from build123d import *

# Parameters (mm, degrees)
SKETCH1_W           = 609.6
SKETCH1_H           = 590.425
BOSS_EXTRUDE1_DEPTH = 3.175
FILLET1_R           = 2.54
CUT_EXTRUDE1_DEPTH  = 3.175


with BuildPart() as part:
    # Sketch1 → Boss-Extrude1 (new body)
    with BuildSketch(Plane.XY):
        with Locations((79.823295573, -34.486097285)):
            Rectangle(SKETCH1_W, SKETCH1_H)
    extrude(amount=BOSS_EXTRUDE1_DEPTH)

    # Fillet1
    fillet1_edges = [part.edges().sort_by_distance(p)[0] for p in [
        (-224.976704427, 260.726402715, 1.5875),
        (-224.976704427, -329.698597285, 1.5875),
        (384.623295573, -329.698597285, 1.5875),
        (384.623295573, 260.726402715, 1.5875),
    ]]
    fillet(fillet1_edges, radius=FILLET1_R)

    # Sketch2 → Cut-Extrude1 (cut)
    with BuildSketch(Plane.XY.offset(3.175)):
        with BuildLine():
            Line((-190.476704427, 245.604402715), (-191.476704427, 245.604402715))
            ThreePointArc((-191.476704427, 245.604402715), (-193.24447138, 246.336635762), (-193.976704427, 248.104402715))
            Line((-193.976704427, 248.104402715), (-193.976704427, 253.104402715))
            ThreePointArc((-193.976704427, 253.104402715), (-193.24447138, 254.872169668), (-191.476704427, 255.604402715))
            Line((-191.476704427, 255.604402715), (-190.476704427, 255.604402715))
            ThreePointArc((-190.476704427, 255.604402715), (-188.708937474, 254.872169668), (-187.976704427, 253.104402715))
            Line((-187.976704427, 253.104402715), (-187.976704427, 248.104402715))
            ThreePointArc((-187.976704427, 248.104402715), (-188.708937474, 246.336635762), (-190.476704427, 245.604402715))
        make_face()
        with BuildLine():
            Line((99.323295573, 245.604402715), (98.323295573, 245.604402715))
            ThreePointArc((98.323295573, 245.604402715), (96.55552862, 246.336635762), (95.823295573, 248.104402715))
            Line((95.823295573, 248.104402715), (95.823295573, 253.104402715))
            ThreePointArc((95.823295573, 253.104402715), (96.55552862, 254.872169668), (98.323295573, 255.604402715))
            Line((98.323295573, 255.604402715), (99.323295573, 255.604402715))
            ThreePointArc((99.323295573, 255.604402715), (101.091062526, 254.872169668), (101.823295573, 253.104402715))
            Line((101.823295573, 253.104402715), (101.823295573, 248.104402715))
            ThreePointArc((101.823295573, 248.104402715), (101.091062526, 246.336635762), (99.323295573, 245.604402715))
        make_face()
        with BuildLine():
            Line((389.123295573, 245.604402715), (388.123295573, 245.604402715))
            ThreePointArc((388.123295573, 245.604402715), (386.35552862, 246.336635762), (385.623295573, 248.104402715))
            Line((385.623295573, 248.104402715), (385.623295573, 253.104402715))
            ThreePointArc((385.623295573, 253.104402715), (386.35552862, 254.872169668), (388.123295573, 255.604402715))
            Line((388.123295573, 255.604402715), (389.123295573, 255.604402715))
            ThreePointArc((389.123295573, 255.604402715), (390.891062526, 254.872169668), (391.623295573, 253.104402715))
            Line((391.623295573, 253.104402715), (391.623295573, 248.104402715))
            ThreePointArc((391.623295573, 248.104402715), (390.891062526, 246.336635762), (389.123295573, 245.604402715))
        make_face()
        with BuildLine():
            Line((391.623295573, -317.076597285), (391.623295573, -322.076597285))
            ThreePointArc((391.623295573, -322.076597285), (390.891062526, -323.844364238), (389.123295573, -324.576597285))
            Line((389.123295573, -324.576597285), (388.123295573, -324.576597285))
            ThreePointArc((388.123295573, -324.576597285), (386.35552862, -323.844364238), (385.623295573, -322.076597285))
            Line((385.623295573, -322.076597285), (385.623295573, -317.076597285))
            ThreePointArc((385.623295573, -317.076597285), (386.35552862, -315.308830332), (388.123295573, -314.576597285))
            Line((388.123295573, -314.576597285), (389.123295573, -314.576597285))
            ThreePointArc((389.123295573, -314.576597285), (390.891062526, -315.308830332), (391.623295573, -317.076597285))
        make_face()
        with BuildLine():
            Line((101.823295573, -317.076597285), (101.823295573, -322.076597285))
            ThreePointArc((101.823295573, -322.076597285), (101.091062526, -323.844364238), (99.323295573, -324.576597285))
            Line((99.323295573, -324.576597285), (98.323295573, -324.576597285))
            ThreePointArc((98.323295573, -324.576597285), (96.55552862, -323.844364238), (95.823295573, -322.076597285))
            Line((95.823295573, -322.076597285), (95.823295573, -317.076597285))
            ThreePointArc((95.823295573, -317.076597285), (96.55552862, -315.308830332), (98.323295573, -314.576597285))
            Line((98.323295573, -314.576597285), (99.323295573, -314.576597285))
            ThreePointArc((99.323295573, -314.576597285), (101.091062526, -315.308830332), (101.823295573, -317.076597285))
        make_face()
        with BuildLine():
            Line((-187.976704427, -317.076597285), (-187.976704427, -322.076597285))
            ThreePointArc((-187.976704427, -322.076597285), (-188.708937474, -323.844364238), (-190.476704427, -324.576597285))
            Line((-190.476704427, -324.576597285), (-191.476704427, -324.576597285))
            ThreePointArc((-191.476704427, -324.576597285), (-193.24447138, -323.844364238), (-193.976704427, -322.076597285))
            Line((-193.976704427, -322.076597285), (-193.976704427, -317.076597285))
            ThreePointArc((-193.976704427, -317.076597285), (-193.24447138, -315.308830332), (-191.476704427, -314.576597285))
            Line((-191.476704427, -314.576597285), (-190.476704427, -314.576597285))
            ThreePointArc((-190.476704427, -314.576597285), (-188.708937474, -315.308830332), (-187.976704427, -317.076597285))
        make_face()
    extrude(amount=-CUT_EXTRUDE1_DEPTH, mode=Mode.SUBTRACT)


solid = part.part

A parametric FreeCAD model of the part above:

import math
import FreeCAD as App
import Part
import Sketcher
from FreeCAD import Vector
Q = App.Units.Quantity


def edges_at(feature, points):
    """Names of the edges that pass closest to the given points."""
    edges = feature.Shape.Edges
    near = lambda p: min(range(len(edges)), key=lambda i: edges[i].distToShape(Part.Vertex(*p))[0])
    return sorted({f"Edge{near(p) + 1}" for p in points})

doc = App.newDocument("Part")
body = doc.addObject("PartDesign::Body", "Body")

# Sketch on XY plane
sketch1 = doc.addObject("Sketcher::SketchObject", "Sketch")
body.addObject(sketch1)
sketch1.AttachmentSupport = (doc.XY_Plane, [""])
sketch1.MapMode = "FlatFace"
sketch1.addGeometry(Part.LineSegment(Vector(-225, 261, 0), Vector(-225, -330, 0)), False)
sketch1.addGeometry(Part.LineSegment(Vector(-225, -330, 0), Vector(385, -330, 0)), False)
sketch1.addGeometry(Part.LineSegment(Vector(385, -330, 0), Vector(385, 261, 0)), False)
sketch1.addGeometry(Part.LineSegment(Vector(385, 261, 0), Vector(-225, 261, 0)), False)
sketch1.addConstraint(Sketcher.Constraint("Coincident", 0, 2, 1, 1))
sketch1.addConstraint(Sketcher.Constraint("Coincident", 1, 2, 2, 1))
sketch1.addConstraint(Sketcher.Constraint("Coincident", 2, 2, 3, 1))
sketch1.addConstraint(Sketcher.Constraint("Coincident", 3, 2, 0, 1))
sketch1.addConstraint(Sketcher.Constraint("Vertical", 0))
sketch1.addConstraint(Sketcher.Constraint("Horizontal", 1))
sketch1.addConstraint(Sketcher.Constraint("Vertical", 2))
sketch1.addConstraint(Sketcher.Constraint("Horizontal", 3))
sketch1.addConstraint(Sketcher.Constraint("DistanceX", 1, 1, 1, 2, Q("24 in")))
sketch1.addConstraint(Sketcher.Constraint("DistanceY", 0, 2, 0, 1, 590.425))
sketch1.addConstraint(Sketcher.Constraint("DistanceX", 0, 2, -1, 1, 224.976704))
sketch1.addConstraint(Sketcher.Constraint("DistanceY", 0, 2, -1, 1, 329.698597))
pad1 = doc.addObject("PartDesign::Pad", "Pad")
body.addObject(pad1)
pad1.Profile = sketch1
pad1.Length = Q("0.125 in")
doc.recompute()

fillet = doc.addObject("PartDesign::Fillet", "Fillet")
body.addObject(fillet)
fillet.Base = (pad1, edges_at(pad1, [
    (-224.977, 260.726, 1.587),
    (-224.977, -329.699, 1.587),
    (384.623, -329.699, 1.587),
    (384.623, 260.726, 1.587),
]))
fillet.Radius = Q("0.1 in")

# Sketch on XY plane
sketch2 = doc.addObject("Sketcher::SketchObject", "Sketch001")
body.addObject(sketch2)
sketch2.AttachmentSupport = (doc.XY_Plane, [""])
sketch2.MapMode = "FlatFace"
sketch2.AttachmentOffset = App.Placement(Vector(0, 0, 0.125 * 25.4), App.Rotation())
sketch2.addGeometry(Part.LineSegment(Vector(-191.5, 245.6, 0), Vector(-190.5, 245.6, 0)), False)
sketch2.addGeometry(Part.ArcOfCircle(Part.Circle(Vector(-190.5, 248.1, 0), Vector(0, 0, 1), 2.5), math.radians(-90), math.radians(0)), False)
sketch2.addGeometry(Part.LineSegment(Vector(-188, 248.1, 0), Vector(-188, 253.1, 0)), False)
sketch2.addGeometry(Part.ArcOfCircle(Part.Circle(Vector(-190.5, 253.1, 0), Vector(0, 0, 1), 2.5), math.radians(0), math.radians(90)), False)
sketch2.addGeometry(Part.LineSegment(Vector(-190.5, 255.6, 0), Vector(-191.5, 255.6, 0)), False)
sketch2.addGeometry(Part.ArcOfCircle(Part.Circle(Vector(-191.5, 253.1, 0), Vector(0, 0, 1), 2.5), math.radians(90), math.radians(180)), False)
sketch2.addGeometry(Part.LineSegment(Vector(-194, 253.1, 0), Vector(-194, 248.1, 0)), False)
sketch2.addGeometry(Part.ArcOfCircle(Part.Circle(Vector(-191.5, 248.1, 0), Vector(0, 0, 1), 2.5), math.radians(180), math.radians(270)), False)
sketch2.addGeometry(Part.LineSegment(Vector(98.3, 245.6, 0), Vector(99.3, 245.6, 0)), False)
sketch2.addGeometry(Part.ArcOfCircle(Part.Circle(Vector(99.3, 248.1, 0), Vector(0, 0, 1), 2.5), math.radians(-90), math.radians(0)), False)
sketch2.addGeometry(Part.LineSegment(Vector(101.8, 248.1, 0), Vector(101.8, 253.1, 0)), False)
sketch2.addGeometry(Part.ArcOfCircle(Part.Circle(Vector(99.3, 253.1, 0), Vector(0, 0, 1), 2.5), math.radians(0), math.radians(90)), False)
sketch2.addGeometry(Part.LineSegment(Vector(99.3, 255.6, 0), Vector(98.3, 255.6, 0)), False)
sketch2.addGeometry(Part.ArcOfCircle(Part.Circle(Vector(98.3, 253.1, 0), Vector(0, 0, 1), 2.5), math.radians(90), math.radians(180)), False)
sketch2.addGeometry(Part.LineSegment(Vector(95.8, 253.1, 0), Vector(95.8, 248.1, 0)), False)
sketch2.addGeometry(Part.ArcOfCircle(Part.Circle(Vector(98.3, 248.1, 0), Vector(0, 0, 1), 2.5), math.radians(180), math.radians(270)), False)
sketch2.addGeometry(Part.LineSegment(Vector(388.1, 245.6, 0), Vector(389.1, 245.6, 0)), False)
sketch2.addGeometry(Part.ArcOfCircle(Part.Circle(Vector(389.1, 248.1, 0), Vector(0, 0, 1), 2.5), math.radians(-90), math.radians(0)), False)
sketch2.addGeometry(Part.LineSegment(Vector(391.6, 248.1, 0), Vector(391.6, 253.1, 0)), False)
sketch2.addGeometry(Part.ArcOfCircle(Part.Circle(Vector(389.1, 253.1, 0), Vector(0, 0, 1), 2.5), math.radians(0), math.radians(90)), False)
sketch2.addGeometry(Part.LineSegment(Vector(389.1, 255.6, 0), Vector(388.1, 255.6, 0)), False)
sketch2.addGeometry(Part.ArcOfCircle(Part.Circle(Vector(388.1, 253.1, 0), Vector(0, 0, 1), 2.5), math.radians(90), math.radians(180)), False)
sketch2.addGeometry(Part.LineSegment(Vector(385.6, 253.1, 0), Vector(385.6, 248.1, 0)), False)
sketch2.addGeometry(Part.ArcOfCircle(Part.Circle(Vector(388.1, 248.1, 0), Vector(0, 0, 1), 2.5), math.radians(180), math.radians(270)), False)
sketch2.addGeometry(Part.LineSegment(Vector(391.6, -322.1, 0), Vector(391.6, -317.1, 0)), False)
sketch2.addGeometry(Part.ArcOfCircle(Part.Circle(Vector(389.1, -317.1, 0), Vector(0, 0, 1), 2.5), math.radians(0), math.radians(90)), False)
sketch2.addGeometry(Part.LineSegment(Vector(389.1, -314.6, 0), Vector(388.1, -314.6, 0)), False)
sketch2.addGeometry(Part.ArcOfCircle(Part.Circle(Vector(388.1, -317.1, 0), Vector(0, 0, 1), 2.5), math.radians(90), math.radians(180)), False)
sketch2.addGeometry(Part.LineSegment(Vector(385.6, -317.1, 0), Vector(385.6, -322.1, 0)), False)
sketch2.addGeometry(Part.ArcOfCircle(Part.Circle(Vector(388.1, -322.1, 0), Vector(0, 0, 1), 2.5), math.radians(180), math.radians(270)), False)
sketch2.addGeometry(Part.LineSegment(Vector(388.1, -324.6, 0), Vector(389.1, -324.6, 0)), False)
sketch2.addGeometry(Part.ArcOfCircle(Part.Circle(Vector(389.1, -322.1, 0), Vector(0, 0, 1), 2.5), math.radians(-90), math.radians(0)), False)
sketch2.addGeometry(Part.LineSegment(Vector(101.8, -322.1, 0), Vector(101.8, -317.1, 0)), False)
sketch2.addGeometry(Part.ArcOfCircle(Part.Circle(Vector(99.3, -317.1, 0), Vector(0, 0, 1), 2.5), math.radians(0), math.radians(90)), False)
sketch2.addGeometry(Part.LineSegment(Vector(99.3, -314.6, 0), Vector(98.3, -314.6, 0)), False)
sketch2.addGeometry(Part.ArcOfCircle(Part.Circle(Vector(98.3, -317.1, 0), Vector(0, 0, 1), 2.5), math.radians(90), math.radians(180)), False)
sketch2.addGeometry(Part.LineSegment(Vector(95.8, -317.1, 0), Vector(95.8, -322.1, 0)), False)
sketch2.addGeometry(Part.ArcOfCircle(Part.Circle(Vector(98.3, -322.1, 0), Vector(0, 0, 1), 2.5), math.radians(180), math.radians(270)), False)
sketch2.addGeometry(Part.LineSegment(Vector(98.3, -324.6, 0), Vector(99.3, -324.6, 0)), False)
sketch2.addGeometry(Part.ArcOfCircle(Part.Circle(Vector(99.3, -322.1, 0), Vector(0, 0, 1), 2.5), math.radians(-90), math.radians(0)), False)
sketch2.addGeometry(Part.LineSegment(Vector(-188, -322.1, 0), Vector(-188, -317.1, 0)), False)
sketch2.addGeometry(Part.ArcOfCircle(Part.Circle(Vector(-190.5, -317.1, 0), Vector(0, 0, 1), 2.5), math.radians(0), math.radians(90)), False)
sketch2.addGeometry(Part.LineSegment(Vector(-190.5, -314.6, 0), Vector(-191.5, -314.6, 0)), False)
sketch2.addGeometry(Part.ArcOfCircle(Part.Circle(Vector(-191.5, -317.1, 0), Vector(0, 0, 1), 2.5), math.radians(90), math.radians(180)), False)
sketch2.addGeometry(Part.LineSegment(Vector(-194, -317.1, 0), Vector(-194, -322.1, 0)), False)
sketch2.addGeometry(Part.ArcOfCircle(Part.Circle(Vector(-191.5, -322.1, 0), Vector(0, 0, 1), 2.5), math.radians(180), math.radians(270)), False)
sketch2.addGeometry(Part.LineSegment(Vector(-191.5, -324.6, 0), Vector(-190.5, -324.6, 0)), False)
sketch2.addGeometry(Part.ArcOfCircle(Part.Circle(Vector(-190.5, -322.1, 0), Vector(0, 0, 1), 2.5), math.radians(-90), math.radians(0)), False)
sketch2.addConstraint(Sketcher.Constraint("Tangent", 0, 2, 1, 1))
sketch2.addConstraint(Sketcher.Constraint("Tangent", 1, 2, 2, 1))
sketch2.addConstraint(Sketcher.Constraint("Tangent", 2, 2, 3, 1))
sketch2.addConstraint(Sketcher.Constraint("Tangent", 3, 2, 4, 1))
sketch2.addConstraint(Sketcher.Constraint("Tangent", 4, 2, 5, 1))
sketch2.addConstraint(Sketcher.Constraint("Tangent", 5, 2, 6, 1))
sketch2.addConstraint(Sketcher.Constraint("Tangent", 6, 2, 7, 1))
sketch2.addConstraint(Sketcher.Constraint("Tangent", 7, 2, 0, 1))
sketch2.addConstraint(Sketcher.Constraint("Tangent", 8, 2, 9, 1))
sketch2.addConstraint(Sketcher.Constraint("Tangent", 9, 2, 10, 1))
sketch2.addConstraint(Sketcher.Constraint("Tangent", 10, 2, 11, 1))
sketch2.addConstraint(Sketcher.Constraint("Tangent", 11, 2, 12, 1))
sketch2.addConstraint(Sketcher.Constraint("Tangent", 12, 2, 13, 1))
sketch2.addConstraint(Sketcher.Constraint("Tangent", 13, 2, 14, 1))
sketch2.addConstraint(Sketcher.Constraint("Tangent", 14, 2, 15, 1))
sketch2.addConstraint(Sketcher.Constraint("Tangent", 15, 2, 8, 1))
sketch2.addConstraint(Sketcher.Constraint("Tangent", 16, 2, 17, 1))
sketch2.addConstraint(Sketcher.Constraint("Tangent", 17, 2, 18, 1))
sketch2.addConstraint(Sketcher.Constraint("Tangent", 18, 2, 19, 1))
sketch2.addConstraint(Sketcher.Constraint("Tangent", 19, 2, 20, 1))
sketch2.addConstraint(Sketcher.Constraint("Tangent", 20, 2, 21, 1))
sketch2.addConstraint(Sketcher.Constraint("Tangent", 21, 2, 22, 1))
sketch2.addConstraint(Sketcher.Constraint("Tangent", 22, 2, 23, 1))
sketch2.addConstraint(Sketcher.Constraint("Tangent", 23, 2, 16, 1))
sketch2.addConstraint(Sketcher.Constraint("Tangent", 24, 2, 25, 1))
sketch2.addConstraint(Sketcher.Constraint("Tangent", 25, 2, 26, 1))
sketch2.addConstraint(Sketcher.Constraint("Tangent", 26, 2, 27, 1))
sketch2.addConstraint(Sketcher.Constraint("Tangent", 27, 2, 28, 1))
sketch2.addConstraint(Sketcher.Constraint("Tangent", 28, 2, 29, 1))
sketch2.addConstraint(Sketcher.Constraint("Tangent", 29, 2, 30, 1))
sketch2.addConstraint(Sketcher.Constraint("Tangent", 30, 2, 31, 1))
sketch2.addConstraint(Sketcher.Constraint("Tangent", 31, 2, 24, 1))
sketch2.addConstraint(Sketcher.Constraint("Tangent", 32, 2, 33, 1))
sketch2.addConstraint(Sketcher.Constraint("Tangent", 33, 2, 34, 1))
sketch2.addConstraint(Sketcher.Constraint("Tangent", 34, 2, 35, 1))
sketch2.addConstraint(Sketcher.Constraint("Tangent", 35, 2, 36, 1))
sketch2.addConstraint(Sketcher.Constraint("Tangent", 36, 2, 37, 1))
sketch2.addConstraint(Sketcher.Constraint("Tangent", 37, 2, 38, 1))
sketch2.addConstraint(Sketcher.Constraint("Tangent", 38, 2, 39, 1))
sketch2.addConstraint(Sketcher.Constraint("Tangent", 39, 2, 32, 1))
sketch2.addConstraint(Sketcher.Constraint("Tangent", 40, 2, 41, 1))
sketch2.addConstraint(Sketcher.Constraint("Tangent", 41, 2, 42, 1))
sketch2.addConstraint(Sketcher.Constraint("Tangent", 42, 2, 43, 1))
sketch2.addConstraint(Sketcher.Constraint("Tangent", 43, 2, 44, 1))
sketch2.addConstraint(Sketcher.Constraint("Tangent", 44, 2, 45, 1))
sketch2.addConstraint(Sketcher.Constraint("Tangent", 45, 2, 46, 1))
sketch2.addConstraint(Sketcher.Constraint("Tangent", 46, 2, 47, 1))
sketch2.addConstraint(Sketcher.Constraint("Tangent", 47, 2, 40, 1))
sketch2.addConstraint(Sketcher.Constraint("Horizontal", 0))
sketch2.addConstraint(Sketcher.Constraint("Vertical", 2))
sketch2.addConstraint(Sketcher.Constraint("Horizontal", 4))
sketch2.addConstraint(Sketcher.Constraint("Vertical", 6))
sketch2.addConstraint(Sketcher.Constraint("Horizontal", 8))
sketch2.addConstraint(Sketcher.Constraint("Vertical", 10))
sketch2.addConstraint(Sketcher.Constraint("Horizontal", 12))
sketch2.addConstraint(Sketcher.Constraint("Vertical", 14))
sketch2.addConstraint(Sketcher.Constraint("Horizontal", 16))
sketch2.addConstraint(Sketcher.Constraint("Vertical", 18))
sketch2.addConstraint(Sketcher.Constraint("Horizontal", 20))
sketch2.addConstraint(Sketcher.Constraint("Vertical", 22))
sketch2.addConstraint(Sketcher.Constraint("Vertical", 24))
sketch2.addConstraint(Sketcher.Constraint("Horizontal", 26))
sketch2.addConstraint(Sketcher.Constraint("Vertical", 28))
sketch2.addConstraint(Sketcher.Constraint("Horizontal", 30))
sketch2.addConstraint(Sketcher.Constraint("Vertical", 32))
sketch2.addConstraint(Sketcher.Constraint("Horizontal", 34))
sketch2.addConstraint(Sketcher.Constraint("Vertical", 36))
sketch2.addConstraint(Sketcher.Constraint("Horizontal", 38))
sketch2.addConstraint(Sketcher.Constraint("Vertical", 40))
sketch2.addConstraint(Sketcher.Constraint("Horizontal", 42))
sketch2.addConstraint(Sketcher.Constraint("Vertical", 44))
sketch2.addConstraint(Sketcher.Constraint("Horizontal", 46))
sketch2.addConstraint(Sketcher.Constraint("Equal", 1, 3))
sketch2.addConstraint(Sketcher.Constraint("Equal", 3, 5))
sketch2.addConstraint(Sketcher.Constraint("Equal", 5, 7))
sketch2.addConstraint(Sketcher.Constraint("Equal", 7, 9))
sketch2.addConstraint(Sketcher.Constraint("Equal", 9, 11))
sketch2.addConstraint(Sketcher.Constraint("Equal", 11, 13))
sketch2.addConstraint(Sketcher.Constraint("Equal", 13, 15))
sketch2.addConstraint(Sketcher.Constraint("Equal", 15, 17))
sketch2.addConstraint(Sketcher.Constraint("Equal", 17, 19))
sketch2.addConstraint(Sketcher.Constraint("Equal", 19, 21))
sketch2.addConstraint(Sketcher.Constraint("Equal", 21, 23))
sketch2.addConstraint(Sketcher.Constraint("Equal", 23, 25))
sketch2.addConstraint(Sketcher.Constraint("Equal", 25, 27))
sketch2.addConstraint(Sketcher.Constraint("Equal", 27, 29))
sketch2.addConstraint(Sketcher.Constraint("Equal", 29, 31))
sketch2.addConstraint(Sketcher.Constraint("Equal", 31, 33))
sketch2.addConstraint(Sketcher.Constraint("Equal", 33, 35))
sketch2.addConstraint(Sketcher.Constraint("Equal", 35, 37))
sketch2.addConstraint(Sketcher.Constraint("Equal", 37, 39))
sketch2.addConstraint(Sketcher.Constraint("Equal", 39, 41))
sketch2.addConstraint(Sketcher.Constraint("Equal", 41, 43))
sketch2.addConstraint(Sketcher.Constraint("Equal", 43, 45))
sketch2.addConstraint(Sketcher.Constraint("Equal", 45, 47))
sketch2.addConstraint(Sketcher.Constraint("Horizontal", 7, 3, 9, 3))
sketch2.addConstraint(Sketcher.Constraint("Horizontal", 5, 3, 11, 3))
sketch2.addConstraint(Sketcher.Constraint("Horizontal", 15, 3, 17, 3))
sketch2.addConstraint(Sketcher.Constraint("Horizontal", 13, 3, 19, 3))
sketch2.addConstraint(Sketcher.Constraint("Horizontal", 27, 3, 33, 3))
sketch2.addConstraint(Sketcher.Constraint("Horizontal", 31, 3, 37, 3))
sketch2.addConstraint(Sketcher.Constraint("Horizontal", 35, 3, 41, 3))
sketch2.addConstraint(Sketcher.Constraint("Horizontal", 39, 3, 45, 3))
sketch2.addConstraint(Sketcher.Constraint("Vertical", 19, 3, 25, 3))
sketch2.addConstraint(Sketcher.Constraint("Vertical", 23, 3, 27, 3))
sketch2.addConstraint(Sketcher.Constraint("Vertical", 11, 3, 33, 3))
sketch2.addConstraint(Sketcher.Constraint("Vertical", 15, 3, 35, 3))
sketch2.addConstraint(Sketcher.Constraint("Vertical", 3, 3, 41, 3))
sketch2.addConstraint(Sketcher.Constraint("Vertical", 7, 3, 43, 3))
sketch2.addConstraint(Sketcher.Constraint("Equal", 4, 8))
sketch2.addConstraint(Sketcher.Constraint("Equal", 12, 16))
sketch2.addConstraint(Sketcher.Constraint("Equal", 22, 24))
sketch2.addConstraint(Sketcher.Constraint("Radius", 1, 2.5))
sketch2.addConstraint(Sketcher.Constraint("DistanceX", 0, 1, 0, 2, 1.0))
sketch2.addConstraint(Sketcher.Constraint("DistanceY", 2, 1, 2, 2, 5.0))
sketch2.addConstraint(Sketcher.Constraint("DistanceX", 1, 3, -1, 1, 190.476704))
sketch2.addConstraint(Sketcher.Constraint("DistanceY", -1, 1, 1, 3, 248.104403))
sketch2.addConstraint(Sketcher.Constraint("DistanceX", -1, 1, 9, 3, 99.323296))
sketch2.addConstraint(Sketcher.Constraint("DistanceX", -1, 1, 17, 3, 389.123296))
sketch2.addConstraint(Sketcher.Constraint("DistanceY", 25, 3, -1, 1, 317.076597))
pocket1 = doc.addObject("PartDesign::Pocket", "Pocket")
body.addObject(pocket1)
pocket1.Profile = sketch2
pocket1.Length = Q("0.125 in")

doc.recompute()
